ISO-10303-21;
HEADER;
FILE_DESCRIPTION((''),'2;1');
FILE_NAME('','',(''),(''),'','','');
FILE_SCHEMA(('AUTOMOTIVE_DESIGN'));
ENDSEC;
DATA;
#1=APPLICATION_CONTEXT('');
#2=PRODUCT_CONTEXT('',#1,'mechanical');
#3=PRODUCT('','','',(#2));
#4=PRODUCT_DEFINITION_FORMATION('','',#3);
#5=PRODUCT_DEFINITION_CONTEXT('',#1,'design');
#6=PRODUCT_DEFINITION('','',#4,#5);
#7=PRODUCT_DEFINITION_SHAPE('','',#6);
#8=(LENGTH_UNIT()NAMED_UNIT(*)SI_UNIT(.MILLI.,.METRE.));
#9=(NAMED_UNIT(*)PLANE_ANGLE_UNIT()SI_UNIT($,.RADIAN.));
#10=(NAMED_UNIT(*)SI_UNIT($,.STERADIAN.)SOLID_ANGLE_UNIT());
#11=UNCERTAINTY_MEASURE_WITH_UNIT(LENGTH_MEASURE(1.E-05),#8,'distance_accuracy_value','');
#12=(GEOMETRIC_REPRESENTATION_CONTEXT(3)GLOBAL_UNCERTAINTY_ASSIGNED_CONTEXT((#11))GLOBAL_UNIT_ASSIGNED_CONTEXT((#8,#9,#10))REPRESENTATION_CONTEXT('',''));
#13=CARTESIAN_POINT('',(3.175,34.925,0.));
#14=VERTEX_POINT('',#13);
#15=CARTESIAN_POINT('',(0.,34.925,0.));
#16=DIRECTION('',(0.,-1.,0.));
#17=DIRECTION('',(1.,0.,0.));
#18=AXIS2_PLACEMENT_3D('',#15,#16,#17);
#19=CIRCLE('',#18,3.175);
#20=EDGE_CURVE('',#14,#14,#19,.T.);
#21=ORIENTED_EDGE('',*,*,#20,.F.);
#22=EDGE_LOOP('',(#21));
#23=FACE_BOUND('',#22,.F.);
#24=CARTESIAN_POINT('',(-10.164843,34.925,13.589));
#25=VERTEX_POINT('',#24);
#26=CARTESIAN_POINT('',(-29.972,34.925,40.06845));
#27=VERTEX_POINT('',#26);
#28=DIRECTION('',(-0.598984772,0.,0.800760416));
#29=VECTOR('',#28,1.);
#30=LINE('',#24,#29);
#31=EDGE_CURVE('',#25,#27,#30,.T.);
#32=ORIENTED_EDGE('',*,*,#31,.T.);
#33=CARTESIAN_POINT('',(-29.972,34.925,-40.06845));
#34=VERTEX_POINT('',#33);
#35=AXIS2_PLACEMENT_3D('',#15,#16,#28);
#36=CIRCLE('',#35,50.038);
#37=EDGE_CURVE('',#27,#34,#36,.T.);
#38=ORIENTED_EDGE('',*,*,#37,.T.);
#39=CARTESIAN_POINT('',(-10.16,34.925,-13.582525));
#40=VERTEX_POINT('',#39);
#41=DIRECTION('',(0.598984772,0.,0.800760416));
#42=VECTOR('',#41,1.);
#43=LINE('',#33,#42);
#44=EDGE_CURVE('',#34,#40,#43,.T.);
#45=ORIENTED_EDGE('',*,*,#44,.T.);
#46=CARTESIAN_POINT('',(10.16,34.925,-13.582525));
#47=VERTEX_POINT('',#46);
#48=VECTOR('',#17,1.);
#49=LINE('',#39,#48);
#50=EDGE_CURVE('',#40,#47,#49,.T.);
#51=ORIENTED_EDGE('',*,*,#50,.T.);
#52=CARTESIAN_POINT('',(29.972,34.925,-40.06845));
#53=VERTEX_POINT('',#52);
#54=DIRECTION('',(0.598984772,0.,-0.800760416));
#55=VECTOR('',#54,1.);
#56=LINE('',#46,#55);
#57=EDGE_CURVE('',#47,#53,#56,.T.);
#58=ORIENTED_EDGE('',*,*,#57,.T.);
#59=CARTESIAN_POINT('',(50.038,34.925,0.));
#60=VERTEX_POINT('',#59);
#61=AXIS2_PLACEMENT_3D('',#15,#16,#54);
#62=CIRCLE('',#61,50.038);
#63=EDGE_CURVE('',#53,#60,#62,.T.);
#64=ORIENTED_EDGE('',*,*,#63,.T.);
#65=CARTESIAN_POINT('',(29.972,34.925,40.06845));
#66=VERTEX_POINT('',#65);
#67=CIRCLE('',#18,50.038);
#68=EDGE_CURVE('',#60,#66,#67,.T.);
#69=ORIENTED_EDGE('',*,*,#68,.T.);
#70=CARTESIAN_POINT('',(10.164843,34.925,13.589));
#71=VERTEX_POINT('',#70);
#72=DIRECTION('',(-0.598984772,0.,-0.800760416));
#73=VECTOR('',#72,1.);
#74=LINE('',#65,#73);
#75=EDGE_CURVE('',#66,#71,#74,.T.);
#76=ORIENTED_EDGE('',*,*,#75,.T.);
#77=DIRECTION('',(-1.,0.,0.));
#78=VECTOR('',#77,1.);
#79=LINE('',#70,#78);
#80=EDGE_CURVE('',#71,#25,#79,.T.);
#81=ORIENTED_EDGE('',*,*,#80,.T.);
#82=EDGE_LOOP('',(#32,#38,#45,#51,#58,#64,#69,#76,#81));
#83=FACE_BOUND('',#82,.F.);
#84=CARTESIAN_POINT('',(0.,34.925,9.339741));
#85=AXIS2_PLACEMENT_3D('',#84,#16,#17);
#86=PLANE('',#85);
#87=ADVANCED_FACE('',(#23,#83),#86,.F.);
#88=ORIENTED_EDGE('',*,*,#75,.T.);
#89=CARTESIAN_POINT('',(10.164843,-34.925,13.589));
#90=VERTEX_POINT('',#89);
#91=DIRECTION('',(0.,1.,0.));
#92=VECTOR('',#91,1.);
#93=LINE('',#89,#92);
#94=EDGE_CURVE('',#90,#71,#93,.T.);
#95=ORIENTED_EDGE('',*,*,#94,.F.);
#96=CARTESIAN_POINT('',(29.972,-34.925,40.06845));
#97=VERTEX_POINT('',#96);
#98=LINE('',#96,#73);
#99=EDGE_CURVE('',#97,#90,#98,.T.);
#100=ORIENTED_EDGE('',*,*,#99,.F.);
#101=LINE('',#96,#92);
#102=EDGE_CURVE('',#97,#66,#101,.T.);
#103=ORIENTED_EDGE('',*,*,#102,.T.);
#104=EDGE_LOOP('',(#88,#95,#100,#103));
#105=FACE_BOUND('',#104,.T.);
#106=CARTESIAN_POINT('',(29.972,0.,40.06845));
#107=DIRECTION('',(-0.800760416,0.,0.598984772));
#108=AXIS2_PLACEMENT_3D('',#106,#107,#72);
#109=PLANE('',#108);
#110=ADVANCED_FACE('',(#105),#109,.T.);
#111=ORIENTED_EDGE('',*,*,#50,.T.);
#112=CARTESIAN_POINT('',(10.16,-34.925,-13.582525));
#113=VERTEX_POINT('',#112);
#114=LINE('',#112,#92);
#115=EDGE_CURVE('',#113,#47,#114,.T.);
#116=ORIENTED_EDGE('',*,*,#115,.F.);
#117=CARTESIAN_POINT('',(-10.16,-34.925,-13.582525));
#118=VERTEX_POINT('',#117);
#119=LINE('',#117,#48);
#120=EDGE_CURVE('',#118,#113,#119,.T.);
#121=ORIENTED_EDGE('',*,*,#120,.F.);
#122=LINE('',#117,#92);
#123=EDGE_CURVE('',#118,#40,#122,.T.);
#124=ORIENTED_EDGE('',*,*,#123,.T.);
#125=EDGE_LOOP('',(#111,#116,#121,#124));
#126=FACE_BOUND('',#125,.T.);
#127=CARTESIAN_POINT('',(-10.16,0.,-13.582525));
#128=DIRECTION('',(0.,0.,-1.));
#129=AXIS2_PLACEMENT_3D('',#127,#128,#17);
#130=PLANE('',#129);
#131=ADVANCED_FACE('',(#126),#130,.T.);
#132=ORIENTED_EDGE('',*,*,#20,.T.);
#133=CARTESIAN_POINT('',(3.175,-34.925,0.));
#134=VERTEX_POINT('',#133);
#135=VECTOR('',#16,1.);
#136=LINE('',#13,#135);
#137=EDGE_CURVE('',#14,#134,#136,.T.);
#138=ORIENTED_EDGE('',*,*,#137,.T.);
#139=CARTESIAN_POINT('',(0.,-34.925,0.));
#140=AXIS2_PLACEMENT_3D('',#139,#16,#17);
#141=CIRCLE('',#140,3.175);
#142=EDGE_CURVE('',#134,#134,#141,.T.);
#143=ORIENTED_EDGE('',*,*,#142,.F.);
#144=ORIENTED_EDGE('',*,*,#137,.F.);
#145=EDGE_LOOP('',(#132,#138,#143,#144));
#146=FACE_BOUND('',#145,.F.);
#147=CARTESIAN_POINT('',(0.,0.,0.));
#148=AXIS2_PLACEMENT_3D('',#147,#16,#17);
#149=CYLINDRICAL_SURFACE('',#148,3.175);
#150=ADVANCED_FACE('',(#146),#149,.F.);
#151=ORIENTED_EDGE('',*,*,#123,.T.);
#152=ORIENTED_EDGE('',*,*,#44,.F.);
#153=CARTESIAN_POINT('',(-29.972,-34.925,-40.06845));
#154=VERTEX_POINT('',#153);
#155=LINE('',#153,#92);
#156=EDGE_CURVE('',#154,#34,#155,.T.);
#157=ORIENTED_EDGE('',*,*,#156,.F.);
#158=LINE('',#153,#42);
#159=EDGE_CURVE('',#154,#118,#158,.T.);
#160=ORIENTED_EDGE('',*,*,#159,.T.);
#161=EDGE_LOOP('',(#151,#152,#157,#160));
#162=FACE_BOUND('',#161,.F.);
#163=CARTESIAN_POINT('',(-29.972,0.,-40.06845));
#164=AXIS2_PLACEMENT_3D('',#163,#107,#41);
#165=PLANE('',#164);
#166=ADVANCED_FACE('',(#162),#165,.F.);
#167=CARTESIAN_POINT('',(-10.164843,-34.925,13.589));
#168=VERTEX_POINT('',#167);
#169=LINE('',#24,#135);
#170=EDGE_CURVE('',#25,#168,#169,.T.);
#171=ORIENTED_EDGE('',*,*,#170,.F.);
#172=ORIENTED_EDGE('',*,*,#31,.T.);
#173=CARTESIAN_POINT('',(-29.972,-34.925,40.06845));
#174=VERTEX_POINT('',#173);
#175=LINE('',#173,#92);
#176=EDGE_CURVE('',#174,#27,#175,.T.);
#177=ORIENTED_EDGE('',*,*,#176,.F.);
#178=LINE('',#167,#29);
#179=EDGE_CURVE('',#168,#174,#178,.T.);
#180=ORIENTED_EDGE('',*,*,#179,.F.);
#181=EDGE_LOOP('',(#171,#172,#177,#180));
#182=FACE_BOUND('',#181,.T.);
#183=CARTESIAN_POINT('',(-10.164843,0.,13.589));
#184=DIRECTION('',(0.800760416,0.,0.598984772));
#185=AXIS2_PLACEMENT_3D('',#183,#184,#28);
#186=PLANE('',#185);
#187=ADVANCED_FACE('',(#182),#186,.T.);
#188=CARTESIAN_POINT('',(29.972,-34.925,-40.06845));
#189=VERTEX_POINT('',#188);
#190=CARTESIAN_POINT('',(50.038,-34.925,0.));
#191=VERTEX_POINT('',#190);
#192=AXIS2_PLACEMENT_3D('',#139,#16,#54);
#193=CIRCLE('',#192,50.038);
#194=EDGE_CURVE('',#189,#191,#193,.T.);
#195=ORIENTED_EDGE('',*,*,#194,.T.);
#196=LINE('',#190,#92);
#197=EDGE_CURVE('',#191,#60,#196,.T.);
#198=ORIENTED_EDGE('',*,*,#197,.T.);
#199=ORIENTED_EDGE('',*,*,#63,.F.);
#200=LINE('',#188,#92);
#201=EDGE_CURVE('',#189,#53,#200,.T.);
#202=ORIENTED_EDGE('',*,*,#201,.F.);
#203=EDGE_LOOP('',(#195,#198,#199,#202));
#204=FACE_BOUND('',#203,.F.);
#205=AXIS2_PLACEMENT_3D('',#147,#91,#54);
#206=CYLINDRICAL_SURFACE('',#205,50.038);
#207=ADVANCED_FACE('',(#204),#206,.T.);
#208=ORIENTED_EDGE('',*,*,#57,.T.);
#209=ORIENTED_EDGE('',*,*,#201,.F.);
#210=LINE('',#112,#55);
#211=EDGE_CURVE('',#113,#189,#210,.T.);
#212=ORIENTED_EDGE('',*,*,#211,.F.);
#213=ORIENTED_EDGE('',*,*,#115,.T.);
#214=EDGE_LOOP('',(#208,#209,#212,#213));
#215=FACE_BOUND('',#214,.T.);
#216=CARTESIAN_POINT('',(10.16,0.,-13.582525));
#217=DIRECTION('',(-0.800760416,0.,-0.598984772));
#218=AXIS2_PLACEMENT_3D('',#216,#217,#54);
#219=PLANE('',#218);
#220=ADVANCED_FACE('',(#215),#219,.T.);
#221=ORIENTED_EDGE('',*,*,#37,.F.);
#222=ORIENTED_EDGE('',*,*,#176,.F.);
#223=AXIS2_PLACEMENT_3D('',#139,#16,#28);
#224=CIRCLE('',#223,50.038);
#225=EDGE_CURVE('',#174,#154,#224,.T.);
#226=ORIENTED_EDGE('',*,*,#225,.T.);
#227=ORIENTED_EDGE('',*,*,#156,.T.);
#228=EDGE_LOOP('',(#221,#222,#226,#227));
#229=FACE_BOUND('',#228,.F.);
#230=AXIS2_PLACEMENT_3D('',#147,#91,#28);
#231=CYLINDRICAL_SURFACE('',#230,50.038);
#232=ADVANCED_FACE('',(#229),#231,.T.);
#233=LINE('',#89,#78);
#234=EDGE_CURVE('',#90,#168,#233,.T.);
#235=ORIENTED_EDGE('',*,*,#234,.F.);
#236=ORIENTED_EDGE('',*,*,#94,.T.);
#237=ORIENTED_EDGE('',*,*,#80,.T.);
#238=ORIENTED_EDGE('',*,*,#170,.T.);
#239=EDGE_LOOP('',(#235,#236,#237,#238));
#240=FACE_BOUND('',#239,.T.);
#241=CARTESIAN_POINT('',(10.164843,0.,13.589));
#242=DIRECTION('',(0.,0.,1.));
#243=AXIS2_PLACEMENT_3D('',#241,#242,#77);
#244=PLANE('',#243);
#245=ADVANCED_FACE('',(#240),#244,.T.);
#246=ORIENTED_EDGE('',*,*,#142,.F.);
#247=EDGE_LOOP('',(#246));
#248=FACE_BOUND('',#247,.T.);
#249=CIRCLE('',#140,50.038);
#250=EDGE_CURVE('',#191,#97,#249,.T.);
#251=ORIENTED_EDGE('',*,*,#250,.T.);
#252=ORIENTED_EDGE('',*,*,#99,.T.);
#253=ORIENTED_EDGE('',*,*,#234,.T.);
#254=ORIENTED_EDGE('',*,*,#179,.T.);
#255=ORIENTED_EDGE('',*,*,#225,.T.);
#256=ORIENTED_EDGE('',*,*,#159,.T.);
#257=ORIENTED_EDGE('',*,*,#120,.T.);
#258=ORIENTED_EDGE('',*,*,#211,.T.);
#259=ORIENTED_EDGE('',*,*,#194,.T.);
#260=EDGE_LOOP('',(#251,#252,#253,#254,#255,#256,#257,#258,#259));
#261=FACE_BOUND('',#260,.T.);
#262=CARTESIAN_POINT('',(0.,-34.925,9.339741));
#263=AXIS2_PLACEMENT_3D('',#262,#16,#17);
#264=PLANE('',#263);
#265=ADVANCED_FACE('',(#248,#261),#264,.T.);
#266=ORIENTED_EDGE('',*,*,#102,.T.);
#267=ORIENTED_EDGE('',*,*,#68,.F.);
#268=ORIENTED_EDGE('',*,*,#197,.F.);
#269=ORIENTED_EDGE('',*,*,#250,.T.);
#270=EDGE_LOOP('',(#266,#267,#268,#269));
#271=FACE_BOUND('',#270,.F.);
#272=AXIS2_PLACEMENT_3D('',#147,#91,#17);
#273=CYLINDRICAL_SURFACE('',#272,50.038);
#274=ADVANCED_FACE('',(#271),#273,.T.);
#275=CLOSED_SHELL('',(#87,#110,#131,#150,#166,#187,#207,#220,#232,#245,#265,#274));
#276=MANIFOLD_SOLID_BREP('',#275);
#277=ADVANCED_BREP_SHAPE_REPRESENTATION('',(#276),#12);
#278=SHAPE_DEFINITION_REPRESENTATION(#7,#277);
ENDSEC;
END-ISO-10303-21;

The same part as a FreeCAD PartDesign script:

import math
import FreeCAD as App
import Part
import Sketcher
Q = App.Units.Quantity

doc = App.newDocument("Part")
body = doc.addObject("PartDesign::Body", "Body")

sketch1 = doc.addObject("Sketcher::SketchObject", "Sketch")
body.addObject(sketch1)
sketch1.AttachmentSupport = (doc.XZ_Plane, [""])
sketch1.MapMode = "FlatFace"
sketch1.addGeometry(Part.LineSegment(App.Vector(10, 14, 0), App.Vector(-10, 14, 0)), False)
sketch1.addGeometry(Part.LineSegment(App.Vector(-10, 14, 0), App.Vector(-30, 40, 0)), False)
sketch1.addGeometry(Part.ArcOfCircle(Part.Circle(App.Vector(0, 0, 0), App.Vector(0, 0, 1), 50), math.radians(127), math.radians(233)), False)
sketch1.addGeometry(Part.LineSegment(App.Vector(-30, -40, 0), App.Vector(-10, -14, 0)), False)
sketch1.addGeometry(Part.LineSegment(App.Vector(-10, -14, 0), App.Vector(10, -14, 0)), False)
sketch1.addGeometry(Part.LineSegment(App.Vector(10, -14, 0), App.Vector(30, -40, 0)), False)
sketch1.addGeometry(Part.ArcOfCircle(Part.Circle(App.Vector(0, 0, 0), App.Vector(0, 0, 1), 50), math.radians(-53), math.radians(0)), False)
sketch1.addGeometry(Part.ArcOfCircle(Part.Circle(App.Vector(0, 0, 0), App.Vector(0, 0, 1), 50), math.radians(0), math.radians(53)), False)
sketch1.addGeometry(Part.LineSegment(App.Vector(30, 40, 0), App.Vector(10, 14, 0)), False)
sketch1.addConstraint(Sketcher.Constraint("Coincident", 0, 2, 1, 1))
sketch1.addConstraint(Sketcher.Constraint("Coincident", 1, 2, 2, 1))
sketch1.addConstraint(Sketcher.Constraint("Coincident", 2, 2, 3, 1))
sketch1.addConstraint(Sketcher.Constraint("Coincident", 3, 2, 4, 1))
sketch1.addConstraint(Sketcher.Constraint("Coincident", 4, 2, 5, 1))
sketch1.addConstraint(Sketcher.Constraint("Coincident", 5, 2, 6, 1))
sketch1.addConstraint(Sketcher.Constraint("Tangent", 6, 2, 7, 1))
sketch1.addConstraint(Sketcher.Constraint("Coincident", 7, 2, 8, 1))
sketch1.addConstraint(Sketcher.Constraint("Coincident", 8, 2, 0, 1))
sketch1.addConstraint(Sketcher.Constraint("Horizontal", 0))
sketch1.addConstraint(Sketcher.Constraint("Horizontal", 4))
sketch1.addConstraint(Sketcher.Constraint("Coincident", 2, 3, -1, 1))
sketch1.addConstraint(Sketcher.Constraint("Coincident", 6, 3, -1, 1))
sketch1.addConstraint(Sketcher.Constraint("Equal", 2, 6))
sketch1.addConstraint(Sketcher.Constraint("Equal", 6, 7))
sketch1.addConstraint(Sketcher.Constraint("PointOnObject", 6, 2, -1))
sketch1.addConstraint(Sketcher.Constraint("Parallel", 1, 5))
sketch1.addConstraint(Sketcher.Constraint("Parallel", 3, 8))
sketch1.addConstraint(Sketcher.Constraint("Horizontal", 2, 2, 5, 2))
sketch1.addConstraint(Sketcher.Constraint("Horizontal", 1, 2, 7, 2))
sketch1.addConstraint(Sketcher.Constraint("Vertical", 1, 2, 2, 2))
sketch1.addConstraint(Sketcher.Constraint("Equal", 3, 5))
sketch1.addConstraint(Sketcher.Constraint("Radius", 2, Q("1.97 in")))
sketch1.addConstraint(Sketcher.Constraint("DistanceX", 4, 1, 4, 2, Q("0.8 in")))
sketch1.addConstraint(Sketcher.Constraint("DistanceX", 1, 2, -1, 1, Q("1.18 in")))
sketch1.addConstraint(Sketcher.Constraint("DistanceY", -1, 1, 0, 2, Q("0.535 in")))
sketch1.addConstraint(Sketcher.Constraint("Distance", 1, 33.06788))
pad1 = doc.addObject("PartDesign::Pad", "Pad")
body.addObject(pad1)
pad1.Profile = sketch1
pad1.Length = Q("2.75 in")
pad1.Midplane = True

sketch2 = doc.addObject("Sketcher::SketchObject", "Sketch001")
body.addObject(sketch2)
sketch2.AttachmentSupport = (doc.XZ_Plane, [""])
sketch2.MapMode = "FlatFace"
sketch2.addGeometry(Part.Circle(App.Vector(0, 0, 0), App.Vector(0, 0, 1), 1.8), False)
sketch2.addConstraint(Sketcher.Constraint("Coincident", 0, 3, -1, 1))
sketch2.addConstraint(Sketcher.Constraint("Diameter", 0, Q("0.14 in")))
pocket1 = doc.addObject("PartDesign::Pocket", "Pocket")
body.addObject(pocket1)
pocket1.Profile = sketch2
pocket1.Type = "ThroughAll"

sketch3 = doc.addObject("Sketcher::SketchObject", "Sketch002")
body.addObject(sketch3)
sketch3.AttachmentSupport = (doc.XZ_Plane, [""])
sketch3.MapMode = "FlatFace"
sketch3.addGeometry(Part.Circle(App.Vector(0, 0, 0), App.Vector(0, 0, 1), 3.2), False)
sketch3.addConstraint(Sketcher.Constraint("Coincident", 0, 3, -1, 1))
sketch3.addConstraint(Sketcher.Constraint("Diameter", 0, Q("0.25 in")))
pocket2 = doc.addObject("PartDesign::Pocket", "Pocket001")
body.addObject(pocket2)
pocket2.Profile = sketch3
pocket2.Length = Q("2.75 in")
pocket2.Midplane = True

doc.recompute()
